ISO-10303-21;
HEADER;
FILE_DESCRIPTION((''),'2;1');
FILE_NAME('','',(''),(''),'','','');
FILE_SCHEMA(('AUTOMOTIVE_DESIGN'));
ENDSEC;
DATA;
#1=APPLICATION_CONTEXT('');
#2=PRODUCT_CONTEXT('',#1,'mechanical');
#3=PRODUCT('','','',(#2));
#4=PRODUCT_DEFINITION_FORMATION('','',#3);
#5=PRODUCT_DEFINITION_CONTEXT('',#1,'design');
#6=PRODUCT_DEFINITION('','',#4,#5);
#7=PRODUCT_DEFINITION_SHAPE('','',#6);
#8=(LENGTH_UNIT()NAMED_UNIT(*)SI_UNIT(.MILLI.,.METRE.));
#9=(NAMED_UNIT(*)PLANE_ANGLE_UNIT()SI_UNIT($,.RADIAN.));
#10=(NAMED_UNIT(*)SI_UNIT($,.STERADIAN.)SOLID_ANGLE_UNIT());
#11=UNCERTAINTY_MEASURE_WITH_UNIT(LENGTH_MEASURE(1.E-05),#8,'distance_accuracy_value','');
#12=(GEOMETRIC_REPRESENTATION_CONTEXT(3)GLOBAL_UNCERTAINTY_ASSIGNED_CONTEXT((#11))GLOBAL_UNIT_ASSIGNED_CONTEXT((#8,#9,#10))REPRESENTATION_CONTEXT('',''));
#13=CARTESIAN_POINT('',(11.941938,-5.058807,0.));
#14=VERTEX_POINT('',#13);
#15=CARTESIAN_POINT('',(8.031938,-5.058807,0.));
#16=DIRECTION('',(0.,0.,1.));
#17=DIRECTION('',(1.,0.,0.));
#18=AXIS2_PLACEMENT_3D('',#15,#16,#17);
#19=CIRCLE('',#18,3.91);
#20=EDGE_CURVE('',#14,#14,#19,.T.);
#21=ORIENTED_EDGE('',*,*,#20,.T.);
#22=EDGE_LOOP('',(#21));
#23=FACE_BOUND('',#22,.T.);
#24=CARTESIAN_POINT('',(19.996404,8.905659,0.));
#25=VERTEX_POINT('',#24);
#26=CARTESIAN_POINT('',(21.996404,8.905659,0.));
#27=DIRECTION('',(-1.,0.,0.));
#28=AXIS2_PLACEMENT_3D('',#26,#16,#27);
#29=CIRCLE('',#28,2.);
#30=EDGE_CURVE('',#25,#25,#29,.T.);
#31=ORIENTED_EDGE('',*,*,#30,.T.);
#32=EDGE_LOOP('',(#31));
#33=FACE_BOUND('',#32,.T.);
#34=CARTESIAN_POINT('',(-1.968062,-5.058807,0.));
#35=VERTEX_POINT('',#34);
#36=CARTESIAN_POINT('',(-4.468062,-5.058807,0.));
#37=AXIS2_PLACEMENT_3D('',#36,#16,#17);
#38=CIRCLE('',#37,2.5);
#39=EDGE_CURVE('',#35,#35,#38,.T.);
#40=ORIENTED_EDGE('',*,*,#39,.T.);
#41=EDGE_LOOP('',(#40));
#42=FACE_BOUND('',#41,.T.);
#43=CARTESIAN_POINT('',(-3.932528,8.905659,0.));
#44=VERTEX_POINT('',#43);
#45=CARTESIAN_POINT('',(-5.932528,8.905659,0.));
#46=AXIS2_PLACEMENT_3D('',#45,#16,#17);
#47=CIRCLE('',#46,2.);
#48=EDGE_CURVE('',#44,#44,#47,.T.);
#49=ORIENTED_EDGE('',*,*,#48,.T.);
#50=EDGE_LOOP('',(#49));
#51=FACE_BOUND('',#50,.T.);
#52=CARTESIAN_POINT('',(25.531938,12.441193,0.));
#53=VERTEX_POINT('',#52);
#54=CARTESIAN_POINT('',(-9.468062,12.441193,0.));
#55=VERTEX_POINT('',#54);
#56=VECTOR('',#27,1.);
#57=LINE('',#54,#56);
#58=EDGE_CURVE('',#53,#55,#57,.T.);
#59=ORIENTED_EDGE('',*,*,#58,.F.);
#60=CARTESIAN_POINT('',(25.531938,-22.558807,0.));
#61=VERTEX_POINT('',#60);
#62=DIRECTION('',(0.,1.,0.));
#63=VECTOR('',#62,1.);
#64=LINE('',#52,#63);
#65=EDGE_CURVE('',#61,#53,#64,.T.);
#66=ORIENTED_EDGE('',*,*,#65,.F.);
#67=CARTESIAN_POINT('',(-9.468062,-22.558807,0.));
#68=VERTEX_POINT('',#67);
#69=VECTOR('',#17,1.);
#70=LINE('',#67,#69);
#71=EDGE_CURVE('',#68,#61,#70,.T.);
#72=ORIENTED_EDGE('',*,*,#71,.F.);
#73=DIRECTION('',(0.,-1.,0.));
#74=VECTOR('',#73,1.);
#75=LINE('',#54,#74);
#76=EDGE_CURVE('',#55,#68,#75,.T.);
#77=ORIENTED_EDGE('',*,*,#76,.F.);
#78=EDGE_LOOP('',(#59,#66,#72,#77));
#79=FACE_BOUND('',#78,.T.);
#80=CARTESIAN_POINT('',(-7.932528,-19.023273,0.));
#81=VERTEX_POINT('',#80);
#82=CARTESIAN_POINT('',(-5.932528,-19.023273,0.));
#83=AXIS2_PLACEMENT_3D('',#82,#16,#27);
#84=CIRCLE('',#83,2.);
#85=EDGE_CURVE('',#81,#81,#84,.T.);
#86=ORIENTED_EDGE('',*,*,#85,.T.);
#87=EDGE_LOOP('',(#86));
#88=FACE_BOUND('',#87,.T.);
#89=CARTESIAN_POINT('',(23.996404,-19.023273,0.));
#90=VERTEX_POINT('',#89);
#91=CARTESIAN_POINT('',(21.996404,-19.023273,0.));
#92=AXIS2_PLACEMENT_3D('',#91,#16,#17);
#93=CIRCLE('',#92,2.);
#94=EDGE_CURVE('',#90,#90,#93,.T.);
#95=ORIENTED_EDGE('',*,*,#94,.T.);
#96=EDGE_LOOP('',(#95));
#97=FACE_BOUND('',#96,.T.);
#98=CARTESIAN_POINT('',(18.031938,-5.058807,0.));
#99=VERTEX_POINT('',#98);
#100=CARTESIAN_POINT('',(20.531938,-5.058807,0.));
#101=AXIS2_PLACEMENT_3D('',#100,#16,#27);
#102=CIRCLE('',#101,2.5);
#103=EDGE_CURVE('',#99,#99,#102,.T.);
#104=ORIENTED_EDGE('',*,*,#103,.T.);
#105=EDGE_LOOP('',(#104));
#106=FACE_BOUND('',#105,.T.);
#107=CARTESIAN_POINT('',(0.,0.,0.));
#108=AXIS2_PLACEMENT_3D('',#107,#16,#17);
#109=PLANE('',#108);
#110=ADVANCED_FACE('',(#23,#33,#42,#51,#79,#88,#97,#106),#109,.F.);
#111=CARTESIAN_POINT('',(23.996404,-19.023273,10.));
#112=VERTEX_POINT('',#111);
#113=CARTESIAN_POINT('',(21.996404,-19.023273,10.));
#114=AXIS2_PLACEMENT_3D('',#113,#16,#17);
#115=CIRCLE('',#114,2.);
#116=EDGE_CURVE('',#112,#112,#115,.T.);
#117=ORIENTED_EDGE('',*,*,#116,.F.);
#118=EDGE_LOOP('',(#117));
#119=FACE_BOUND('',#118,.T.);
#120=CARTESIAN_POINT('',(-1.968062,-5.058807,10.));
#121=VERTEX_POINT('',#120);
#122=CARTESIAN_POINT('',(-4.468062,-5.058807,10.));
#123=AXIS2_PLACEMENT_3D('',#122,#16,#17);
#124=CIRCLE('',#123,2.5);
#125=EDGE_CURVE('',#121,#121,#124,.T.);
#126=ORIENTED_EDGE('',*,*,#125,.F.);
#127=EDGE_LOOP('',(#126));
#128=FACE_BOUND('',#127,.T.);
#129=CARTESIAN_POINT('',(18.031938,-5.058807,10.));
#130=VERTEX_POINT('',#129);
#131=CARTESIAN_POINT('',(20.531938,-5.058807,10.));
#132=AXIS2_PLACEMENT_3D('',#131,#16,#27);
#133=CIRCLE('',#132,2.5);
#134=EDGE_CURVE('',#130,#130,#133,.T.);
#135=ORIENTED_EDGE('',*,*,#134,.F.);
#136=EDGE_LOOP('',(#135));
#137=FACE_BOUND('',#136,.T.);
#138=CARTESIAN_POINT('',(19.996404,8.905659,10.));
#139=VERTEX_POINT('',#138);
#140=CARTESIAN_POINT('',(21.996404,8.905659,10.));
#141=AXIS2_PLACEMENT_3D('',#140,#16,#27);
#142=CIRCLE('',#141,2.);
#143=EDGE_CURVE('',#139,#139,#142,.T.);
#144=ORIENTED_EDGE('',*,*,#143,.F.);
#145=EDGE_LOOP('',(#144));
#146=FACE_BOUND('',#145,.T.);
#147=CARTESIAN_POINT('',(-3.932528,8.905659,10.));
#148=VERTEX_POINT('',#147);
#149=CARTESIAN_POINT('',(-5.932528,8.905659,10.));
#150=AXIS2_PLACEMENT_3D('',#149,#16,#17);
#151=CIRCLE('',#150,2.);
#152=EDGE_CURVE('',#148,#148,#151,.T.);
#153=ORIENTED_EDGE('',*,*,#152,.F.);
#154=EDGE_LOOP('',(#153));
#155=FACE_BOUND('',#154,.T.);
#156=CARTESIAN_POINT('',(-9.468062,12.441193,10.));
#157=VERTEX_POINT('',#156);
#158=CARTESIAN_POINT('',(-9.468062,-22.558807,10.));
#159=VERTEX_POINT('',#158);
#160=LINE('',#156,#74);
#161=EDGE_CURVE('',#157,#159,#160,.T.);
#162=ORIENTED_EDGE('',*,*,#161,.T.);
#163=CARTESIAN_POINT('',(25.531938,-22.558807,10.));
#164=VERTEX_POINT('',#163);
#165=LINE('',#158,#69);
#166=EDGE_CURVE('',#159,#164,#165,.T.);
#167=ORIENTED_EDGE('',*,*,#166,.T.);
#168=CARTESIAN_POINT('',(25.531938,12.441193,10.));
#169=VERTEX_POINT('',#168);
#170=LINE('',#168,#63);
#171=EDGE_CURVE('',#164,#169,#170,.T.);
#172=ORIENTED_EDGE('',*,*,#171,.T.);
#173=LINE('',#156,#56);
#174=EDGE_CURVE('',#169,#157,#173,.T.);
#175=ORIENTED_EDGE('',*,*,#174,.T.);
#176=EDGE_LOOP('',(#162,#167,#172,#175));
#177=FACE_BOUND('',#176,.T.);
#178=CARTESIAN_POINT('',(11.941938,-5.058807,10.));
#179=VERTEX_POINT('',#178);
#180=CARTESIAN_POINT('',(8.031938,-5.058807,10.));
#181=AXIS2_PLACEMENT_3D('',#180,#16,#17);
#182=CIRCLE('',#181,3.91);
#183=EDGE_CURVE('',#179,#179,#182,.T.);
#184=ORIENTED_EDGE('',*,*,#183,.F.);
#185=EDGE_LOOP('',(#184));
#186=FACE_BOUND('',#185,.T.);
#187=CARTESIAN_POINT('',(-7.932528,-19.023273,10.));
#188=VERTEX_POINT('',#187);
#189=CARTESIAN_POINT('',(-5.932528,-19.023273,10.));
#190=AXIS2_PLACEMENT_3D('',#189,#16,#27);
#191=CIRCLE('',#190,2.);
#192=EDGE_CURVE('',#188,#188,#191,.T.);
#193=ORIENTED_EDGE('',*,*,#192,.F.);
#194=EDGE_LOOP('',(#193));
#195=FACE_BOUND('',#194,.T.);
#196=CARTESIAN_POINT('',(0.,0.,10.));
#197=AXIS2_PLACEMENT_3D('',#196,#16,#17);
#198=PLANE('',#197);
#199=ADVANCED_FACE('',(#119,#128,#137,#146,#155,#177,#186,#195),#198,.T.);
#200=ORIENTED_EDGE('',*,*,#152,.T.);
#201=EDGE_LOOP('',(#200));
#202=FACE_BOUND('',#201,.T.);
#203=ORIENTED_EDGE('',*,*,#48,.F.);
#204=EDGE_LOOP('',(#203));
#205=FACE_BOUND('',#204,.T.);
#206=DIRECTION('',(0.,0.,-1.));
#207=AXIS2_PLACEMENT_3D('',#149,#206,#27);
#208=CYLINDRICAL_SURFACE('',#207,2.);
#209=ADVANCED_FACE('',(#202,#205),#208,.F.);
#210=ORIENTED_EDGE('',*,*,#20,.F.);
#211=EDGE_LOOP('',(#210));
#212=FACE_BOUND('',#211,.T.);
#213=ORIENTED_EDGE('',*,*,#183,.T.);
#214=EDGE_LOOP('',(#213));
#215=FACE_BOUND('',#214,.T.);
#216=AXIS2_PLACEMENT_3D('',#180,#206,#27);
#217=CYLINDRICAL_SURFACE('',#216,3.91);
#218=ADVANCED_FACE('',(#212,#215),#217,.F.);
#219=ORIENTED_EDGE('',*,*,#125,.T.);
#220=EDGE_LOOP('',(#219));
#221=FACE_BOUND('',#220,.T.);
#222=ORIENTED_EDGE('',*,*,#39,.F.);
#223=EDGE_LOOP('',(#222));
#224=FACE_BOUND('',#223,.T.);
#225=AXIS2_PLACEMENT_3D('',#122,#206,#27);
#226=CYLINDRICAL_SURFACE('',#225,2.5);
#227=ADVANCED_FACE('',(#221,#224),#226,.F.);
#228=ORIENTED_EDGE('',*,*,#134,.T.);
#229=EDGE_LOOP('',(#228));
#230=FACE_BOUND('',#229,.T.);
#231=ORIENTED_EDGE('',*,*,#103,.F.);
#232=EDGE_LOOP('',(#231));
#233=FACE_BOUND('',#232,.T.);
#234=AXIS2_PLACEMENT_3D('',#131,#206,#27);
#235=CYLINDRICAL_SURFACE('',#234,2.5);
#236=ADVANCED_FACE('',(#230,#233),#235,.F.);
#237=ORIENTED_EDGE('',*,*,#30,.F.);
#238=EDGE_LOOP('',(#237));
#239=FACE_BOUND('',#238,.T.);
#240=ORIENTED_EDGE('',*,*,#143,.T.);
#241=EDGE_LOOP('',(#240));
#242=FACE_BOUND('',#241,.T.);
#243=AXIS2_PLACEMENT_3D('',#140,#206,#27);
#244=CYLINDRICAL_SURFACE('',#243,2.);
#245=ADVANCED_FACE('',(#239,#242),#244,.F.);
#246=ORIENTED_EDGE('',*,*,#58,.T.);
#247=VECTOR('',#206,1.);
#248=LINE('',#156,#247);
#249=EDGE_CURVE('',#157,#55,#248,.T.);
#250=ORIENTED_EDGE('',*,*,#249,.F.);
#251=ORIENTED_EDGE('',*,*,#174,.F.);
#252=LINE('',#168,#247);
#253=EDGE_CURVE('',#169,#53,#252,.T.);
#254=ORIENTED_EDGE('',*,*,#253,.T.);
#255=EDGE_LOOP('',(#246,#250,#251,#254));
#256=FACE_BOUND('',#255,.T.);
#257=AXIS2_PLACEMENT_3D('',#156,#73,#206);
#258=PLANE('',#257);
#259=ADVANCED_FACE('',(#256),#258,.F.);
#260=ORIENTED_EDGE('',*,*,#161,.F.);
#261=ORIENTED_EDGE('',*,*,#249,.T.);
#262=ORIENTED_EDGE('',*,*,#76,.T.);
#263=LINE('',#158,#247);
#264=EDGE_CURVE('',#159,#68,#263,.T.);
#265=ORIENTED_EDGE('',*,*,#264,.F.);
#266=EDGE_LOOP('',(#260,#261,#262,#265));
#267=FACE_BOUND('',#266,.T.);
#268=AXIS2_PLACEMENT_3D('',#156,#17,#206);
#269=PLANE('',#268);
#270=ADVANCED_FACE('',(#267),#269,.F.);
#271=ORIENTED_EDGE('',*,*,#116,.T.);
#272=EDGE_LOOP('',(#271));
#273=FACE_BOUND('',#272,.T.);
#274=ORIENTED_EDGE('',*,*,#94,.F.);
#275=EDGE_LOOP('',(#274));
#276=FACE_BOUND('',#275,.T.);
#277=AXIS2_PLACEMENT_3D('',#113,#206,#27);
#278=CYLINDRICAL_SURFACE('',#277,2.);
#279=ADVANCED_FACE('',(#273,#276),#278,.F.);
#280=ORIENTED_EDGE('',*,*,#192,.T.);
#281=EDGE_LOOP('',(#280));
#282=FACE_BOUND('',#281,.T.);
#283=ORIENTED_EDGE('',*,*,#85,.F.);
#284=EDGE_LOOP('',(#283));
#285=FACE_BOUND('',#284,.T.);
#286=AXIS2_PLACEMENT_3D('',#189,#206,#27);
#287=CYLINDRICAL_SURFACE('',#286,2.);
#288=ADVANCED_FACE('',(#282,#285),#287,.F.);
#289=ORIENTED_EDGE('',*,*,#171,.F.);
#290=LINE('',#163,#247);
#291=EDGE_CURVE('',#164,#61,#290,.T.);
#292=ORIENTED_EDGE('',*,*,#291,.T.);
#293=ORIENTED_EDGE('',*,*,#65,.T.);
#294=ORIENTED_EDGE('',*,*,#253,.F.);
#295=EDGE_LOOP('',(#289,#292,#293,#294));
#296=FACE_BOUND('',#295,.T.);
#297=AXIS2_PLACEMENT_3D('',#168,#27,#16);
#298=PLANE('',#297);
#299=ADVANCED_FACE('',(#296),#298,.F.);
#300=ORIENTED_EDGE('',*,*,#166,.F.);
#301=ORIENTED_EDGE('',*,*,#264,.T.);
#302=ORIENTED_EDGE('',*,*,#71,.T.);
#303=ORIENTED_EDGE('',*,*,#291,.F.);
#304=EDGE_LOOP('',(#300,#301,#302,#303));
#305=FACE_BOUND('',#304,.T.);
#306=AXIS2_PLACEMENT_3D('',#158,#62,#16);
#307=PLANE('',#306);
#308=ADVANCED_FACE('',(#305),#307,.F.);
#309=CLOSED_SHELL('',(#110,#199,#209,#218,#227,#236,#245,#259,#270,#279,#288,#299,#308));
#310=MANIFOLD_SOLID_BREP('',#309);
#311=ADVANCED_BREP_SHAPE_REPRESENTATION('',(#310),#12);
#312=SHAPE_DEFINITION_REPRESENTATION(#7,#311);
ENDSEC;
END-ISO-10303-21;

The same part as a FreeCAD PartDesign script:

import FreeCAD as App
import Part
import Sketcher
Q = App.Units.Quantity

doc = App.newDocument("Part")
body = doc.addObject("PartDesign::Body", "Body")

# Sketch on XY plane
sketch1 = body.newObject("Sketcher::SketchObject", "Sketch")
sketch1.AttachmentSupport = (doc.getObject("XY_Plane"), [""])
sketch1.MapMode = "FlatFace"
sketch1.addGeometry(Part.LineSegment(App.Vector(-9.5, 12.4, 0), App.Vector(-9.5, -22.6, 0)), False)
sketch1.addGeometry(Part.LineSegment(App.Vector(-9.5, -22.6, 0), App.Vector(25.5, -22.6, 0)), False)
sketch1.addGeometry(Part.LineSegment(App.Vector(25.5, -22.6, 0), App.Vector(25.5, 12.4, 0)), False)
sketch1.addGeometry(Part.LineSegment(App.Vector(25.5, 12.4, 0), App.Vector(-9.5, 12.4, 0)), False)
sketch1.addGeometry(Part.Circle(App.Vector(-5.9, -19, 0), App.Vector(0, 0, 1), 2), False)
sketch1.addGeometry(Part.Circle(App.Vector(22, -19, 0), App.Vector(0, 0, 1), 2), False)
sketch1.addGeometry(Part.Circle(App.Vector(-4.5, -5.1, 0), App.Vector(0, 0, 1), 2.5), False)
sketch1.addGeometry(Part.Circle(App.Vector(8, -5.1, 0), App.Vector(0, 0, 1), 3.9), False)
sketch1.addGeometry(Part.Circle(App.Vector(-5.9, 8.9, 0), App.Vector(0, 0, 1), 2), False)
sketch1.addGeometry(Part.Circle(App.Vector(20.5, -5.1, 0), App.Vector(0, 0, 1), 2.5), False)
sketch1.addGeometry(Part.Circle(App.Vector(22, 8.9, 0), App.Vector(0, 0, 1), 2), False)
sketch1.addConstraint(Sketcher.Constraint("Coincident", 0, 2, 1, 1))
sketch1.addConstraint(Sketcher.Constraint("Coincident", 1, 2, 2, 1))
sketch1.addConstraint(Sketcher.Constraint("Coincident", 2, 2, 3, 1))
sketch1.addConstraint(Sketcher.Constraint("Coincident", 3, 2, 0, 1))
sketch1.addConstraint(Sketcher.Constraint("Vertical", 0))
sketch1.addConstraint(Sketcher.Constraint("Horizontal", 1))
sketch1.addConstraint(Sketcher.Constraint("Vertical", 2))
sketch1.addConstraint(Sketcher.Constraint("Horizontal", 3))
sketch1.addConstraint(Sketcher.Constraint("Equal", 4, 5))
sketch1.addConstraint(Sketcher.Constraint("Equal", 5, 8))
sketch1.addConstraint(Sketcher.Constraint("Equal", 6, 9))
sketch1.addConstraint(Sketcher.Constraint("Equal", 8, 10))
sketch1.addConstraint(Sketcher.Constraint("Horizontal", 4, 3, 5, 3))
sketch1.addConstraint(Sketcher.Constraint("Horizontal", 6, 3, 7, 3))
sketch1.addConstraint(Sketcher.Constraint("Horizontal", 7, 3, 9, 3))
sketch1.addConstraint(Sketcher.Constraint("Horizontal", 8, 3, 10, 3))
sketch1.addConstraint(Sketcher.Constraint("Vertical", 4, 3, 8, 3))
sketch1.addConstraint(Sketcher.Constraint("Vertical", 5, 3, 10, 3))
sketch1.addConstraint(Sketcher.Constraint("Equal", 3, 0))
sketch1.addConstraint(Sketcher.Constraint("Diameter", 4, Q("4 mm")))
sketch1.addConstraint(Sketcher.Constraint("Diameter", 6, Q("5 mm")))
sketch1.addConstraint(Sketcher.Constraint("Diameter", 7, Q("7.82 mm")))
sketch1.addConstraint(Sketcher.Constraint("DistanceX", 1, 1, 1, 2, Q("35 mm")))
sketch1.addConstraint(Sketcher.Constraint("DistanceX", 6, 3, 9, 3, Q("25 mm")))
sketch1.addConstraint(Sketcher.Constraint("DistanceX", 0, 2, 6, 3, Q("5 mm")))
sketch1.addConstraint(Sketcher.Constraint("DistanceX", 6, 3, 7, 3, Q("12.5 mm")))
sketch1.addConstraint(Sketcher.Constraint("DistanceY", 0, 2, 6, 3, Q("17.5 mm")))
sketch1.addConstraint(Sketcher.Constraint("DistanceX", 4, 3, -1, 1, Q("5.932528 mm")))
sketch1.addConstraint(Sketcher.Constraint("DistanceY", -1, 1, 8, 3, Q("8.905659 mm")))
sketch1.addConstraint(Sketcher.Constraint("DistanceY", 4, 3, -1, 1, Q("19.023273 mm")))
sketch1.addConstraint(Sketcher.Constraint("DistanceX", -1, 1, 5, 3, Q("21.996404 mm")))
sketch1.addConstraint(Sketcher.Constraint("DistanceX", 6, 3, -1, 1, Q("4.468062 mm")))
sketch1.addConstraint(Sketcher.Constraint("DistanceY", 6, 3, -1, 1, Q("5.058807 mm")))
pad1 = body.newObject("PartDesign::Pad", "Pad")
pad1.Profile = sketch1
pad1.Length = 10

doc.recompute()
